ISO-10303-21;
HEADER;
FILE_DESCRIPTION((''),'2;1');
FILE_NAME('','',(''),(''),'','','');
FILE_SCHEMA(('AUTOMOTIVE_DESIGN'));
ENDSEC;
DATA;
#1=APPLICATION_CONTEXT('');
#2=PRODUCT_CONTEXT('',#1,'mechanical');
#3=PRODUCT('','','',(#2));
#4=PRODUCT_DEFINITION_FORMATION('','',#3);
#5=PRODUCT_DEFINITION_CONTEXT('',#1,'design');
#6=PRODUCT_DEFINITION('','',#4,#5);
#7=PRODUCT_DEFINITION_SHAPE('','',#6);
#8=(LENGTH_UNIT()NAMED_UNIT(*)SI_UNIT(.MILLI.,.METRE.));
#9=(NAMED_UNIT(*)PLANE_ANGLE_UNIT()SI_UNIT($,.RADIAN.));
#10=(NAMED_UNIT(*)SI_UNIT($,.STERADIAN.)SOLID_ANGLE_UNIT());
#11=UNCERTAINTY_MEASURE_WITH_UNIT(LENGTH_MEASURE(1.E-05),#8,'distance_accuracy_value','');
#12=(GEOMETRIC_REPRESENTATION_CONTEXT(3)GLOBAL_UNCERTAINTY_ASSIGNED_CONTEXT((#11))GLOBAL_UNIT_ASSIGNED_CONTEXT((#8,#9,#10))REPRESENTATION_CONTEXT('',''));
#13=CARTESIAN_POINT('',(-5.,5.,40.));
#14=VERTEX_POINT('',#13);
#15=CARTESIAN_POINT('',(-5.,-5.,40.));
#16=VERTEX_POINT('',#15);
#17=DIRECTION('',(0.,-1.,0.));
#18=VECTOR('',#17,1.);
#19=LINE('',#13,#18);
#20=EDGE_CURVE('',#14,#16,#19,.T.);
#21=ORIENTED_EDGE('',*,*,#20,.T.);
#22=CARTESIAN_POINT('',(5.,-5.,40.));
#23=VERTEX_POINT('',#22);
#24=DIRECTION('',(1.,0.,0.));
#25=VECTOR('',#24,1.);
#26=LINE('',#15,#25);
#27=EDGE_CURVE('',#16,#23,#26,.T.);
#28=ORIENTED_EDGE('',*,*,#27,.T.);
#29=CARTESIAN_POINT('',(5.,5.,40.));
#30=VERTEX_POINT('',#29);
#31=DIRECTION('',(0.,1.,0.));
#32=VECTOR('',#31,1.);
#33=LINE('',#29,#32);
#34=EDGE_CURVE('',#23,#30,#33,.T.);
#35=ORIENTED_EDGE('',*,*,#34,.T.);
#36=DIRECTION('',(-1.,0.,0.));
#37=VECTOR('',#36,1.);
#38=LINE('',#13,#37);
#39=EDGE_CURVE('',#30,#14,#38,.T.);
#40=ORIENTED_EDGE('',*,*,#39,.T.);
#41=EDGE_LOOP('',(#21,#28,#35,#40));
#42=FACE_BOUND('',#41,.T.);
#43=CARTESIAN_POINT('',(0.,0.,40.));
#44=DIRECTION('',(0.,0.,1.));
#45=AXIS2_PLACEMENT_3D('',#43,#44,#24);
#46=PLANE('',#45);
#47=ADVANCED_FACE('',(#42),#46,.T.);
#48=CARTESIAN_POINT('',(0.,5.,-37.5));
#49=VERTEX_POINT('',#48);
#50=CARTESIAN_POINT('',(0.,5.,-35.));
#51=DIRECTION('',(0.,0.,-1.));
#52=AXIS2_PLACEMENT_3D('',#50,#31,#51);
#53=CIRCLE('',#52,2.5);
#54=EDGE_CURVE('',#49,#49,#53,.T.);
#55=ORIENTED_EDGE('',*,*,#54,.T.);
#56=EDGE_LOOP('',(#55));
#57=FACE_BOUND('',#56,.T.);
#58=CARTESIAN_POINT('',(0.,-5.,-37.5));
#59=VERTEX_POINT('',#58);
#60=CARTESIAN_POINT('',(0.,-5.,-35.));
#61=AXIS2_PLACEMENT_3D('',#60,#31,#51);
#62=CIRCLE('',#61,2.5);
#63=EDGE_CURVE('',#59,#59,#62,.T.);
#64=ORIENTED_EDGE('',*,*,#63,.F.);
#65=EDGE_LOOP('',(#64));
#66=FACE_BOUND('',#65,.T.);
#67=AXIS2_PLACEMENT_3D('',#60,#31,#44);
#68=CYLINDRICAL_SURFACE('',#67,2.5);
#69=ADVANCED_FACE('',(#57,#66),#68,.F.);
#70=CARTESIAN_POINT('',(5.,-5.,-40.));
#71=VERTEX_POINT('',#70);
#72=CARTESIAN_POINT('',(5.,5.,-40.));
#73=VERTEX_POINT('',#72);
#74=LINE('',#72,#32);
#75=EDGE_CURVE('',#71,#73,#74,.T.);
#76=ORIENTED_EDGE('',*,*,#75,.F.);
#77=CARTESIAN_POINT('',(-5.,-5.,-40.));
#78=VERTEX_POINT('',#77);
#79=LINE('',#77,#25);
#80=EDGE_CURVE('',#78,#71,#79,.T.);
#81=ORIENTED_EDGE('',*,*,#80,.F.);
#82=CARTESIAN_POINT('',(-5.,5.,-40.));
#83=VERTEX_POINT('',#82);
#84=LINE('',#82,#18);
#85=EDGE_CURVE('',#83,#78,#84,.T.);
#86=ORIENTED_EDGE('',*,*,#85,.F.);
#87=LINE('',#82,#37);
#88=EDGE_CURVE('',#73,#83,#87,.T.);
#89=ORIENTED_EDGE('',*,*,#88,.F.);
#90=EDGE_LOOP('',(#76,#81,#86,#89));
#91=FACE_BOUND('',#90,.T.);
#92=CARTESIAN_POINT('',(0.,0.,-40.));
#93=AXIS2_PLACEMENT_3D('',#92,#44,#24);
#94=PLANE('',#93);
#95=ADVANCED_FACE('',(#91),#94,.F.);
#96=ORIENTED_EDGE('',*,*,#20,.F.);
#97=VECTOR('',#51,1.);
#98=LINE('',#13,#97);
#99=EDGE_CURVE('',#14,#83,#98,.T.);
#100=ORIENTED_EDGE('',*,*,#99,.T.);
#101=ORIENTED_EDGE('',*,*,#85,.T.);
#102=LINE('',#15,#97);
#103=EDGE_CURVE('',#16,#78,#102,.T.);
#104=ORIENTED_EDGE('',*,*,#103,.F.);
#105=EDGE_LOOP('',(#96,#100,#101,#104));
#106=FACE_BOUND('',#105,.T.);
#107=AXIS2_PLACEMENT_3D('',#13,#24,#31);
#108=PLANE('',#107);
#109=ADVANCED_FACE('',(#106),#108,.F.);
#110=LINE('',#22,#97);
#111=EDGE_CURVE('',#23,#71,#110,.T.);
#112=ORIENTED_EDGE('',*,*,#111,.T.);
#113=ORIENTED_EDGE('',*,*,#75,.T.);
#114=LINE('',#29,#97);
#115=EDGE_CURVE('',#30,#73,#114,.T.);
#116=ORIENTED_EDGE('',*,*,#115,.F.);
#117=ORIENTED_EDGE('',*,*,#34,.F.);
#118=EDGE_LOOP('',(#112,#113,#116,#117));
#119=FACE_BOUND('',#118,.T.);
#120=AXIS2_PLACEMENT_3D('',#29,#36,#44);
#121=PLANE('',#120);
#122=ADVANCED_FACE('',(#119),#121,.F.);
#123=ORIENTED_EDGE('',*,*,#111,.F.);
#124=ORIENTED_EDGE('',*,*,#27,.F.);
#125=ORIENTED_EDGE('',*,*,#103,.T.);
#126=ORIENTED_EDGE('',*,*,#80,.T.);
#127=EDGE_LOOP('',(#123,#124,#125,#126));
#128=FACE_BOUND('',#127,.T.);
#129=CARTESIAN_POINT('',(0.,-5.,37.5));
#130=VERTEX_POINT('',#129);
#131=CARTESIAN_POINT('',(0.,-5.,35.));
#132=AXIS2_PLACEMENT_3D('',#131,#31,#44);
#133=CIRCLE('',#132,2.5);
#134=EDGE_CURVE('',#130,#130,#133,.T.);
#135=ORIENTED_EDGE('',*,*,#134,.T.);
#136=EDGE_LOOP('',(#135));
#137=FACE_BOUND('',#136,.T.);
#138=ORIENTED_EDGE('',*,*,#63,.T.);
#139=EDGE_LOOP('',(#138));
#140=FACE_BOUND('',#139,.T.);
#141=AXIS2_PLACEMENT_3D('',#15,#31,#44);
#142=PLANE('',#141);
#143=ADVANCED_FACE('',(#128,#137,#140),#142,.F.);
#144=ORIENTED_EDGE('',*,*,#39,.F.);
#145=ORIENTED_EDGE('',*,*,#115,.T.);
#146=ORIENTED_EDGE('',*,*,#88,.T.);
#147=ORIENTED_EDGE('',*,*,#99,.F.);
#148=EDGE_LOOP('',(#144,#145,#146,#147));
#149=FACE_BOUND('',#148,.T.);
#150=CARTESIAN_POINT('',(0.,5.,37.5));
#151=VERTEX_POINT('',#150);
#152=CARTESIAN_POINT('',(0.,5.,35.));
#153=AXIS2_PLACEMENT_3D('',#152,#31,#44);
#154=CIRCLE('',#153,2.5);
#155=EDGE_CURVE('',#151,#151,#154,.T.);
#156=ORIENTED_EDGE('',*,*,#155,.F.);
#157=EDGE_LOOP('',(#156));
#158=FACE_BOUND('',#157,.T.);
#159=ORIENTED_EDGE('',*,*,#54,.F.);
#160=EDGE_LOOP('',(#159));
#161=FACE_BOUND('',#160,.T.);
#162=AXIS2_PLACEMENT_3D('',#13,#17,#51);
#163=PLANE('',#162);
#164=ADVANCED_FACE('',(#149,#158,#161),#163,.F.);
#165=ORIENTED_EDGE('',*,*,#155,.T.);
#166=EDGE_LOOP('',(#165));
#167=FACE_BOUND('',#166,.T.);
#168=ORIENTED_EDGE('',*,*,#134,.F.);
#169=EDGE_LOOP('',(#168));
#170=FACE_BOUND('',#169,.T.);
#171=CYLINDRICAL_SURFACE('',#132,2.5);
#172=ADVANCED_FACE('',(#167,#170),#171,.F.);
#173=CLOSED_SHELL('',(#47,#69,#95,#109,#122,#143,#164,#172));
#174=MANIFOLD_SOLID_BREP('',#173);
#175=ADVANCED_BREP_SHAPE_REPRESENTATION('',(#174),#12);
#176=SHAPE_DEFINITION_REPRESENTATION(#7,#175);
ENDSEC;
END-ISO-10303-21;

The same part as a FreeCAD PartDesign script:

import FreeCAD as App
import Part
import Sketcher
from FreeCAD import Vector

doc = App.newDocument("Part")
body = doc.addObject("PartDesign::Body", "Body")

sketch1 = doc.addObject("Sketcher::SketchObject", "Sketch")
body.addObject(sketch1)
sketch1.AttachmentSupport = (doc.XY_Plane, [""])
sketch1.MapMode = "FlatFace"
sketch1.addGeometry(Part.LineSegment(Vector(-5, 5, 0), Vector(-5, -5, 0)), False)
sketch1.addGeometry(Part.LineSegment(Vector(-5, -5, 0), Vector(5, -5, 0)), False)
sketch1.addGeometry(Part.LineSegment(Vector(5, -5, 0), Vector(5, 5, 0)), False)
sketch1.addGeometry(Part.LineSegment(Vector(5, 5, 0), Vector(-5, 5, 0)), False)
sketch1.addConstraint(Sketcher.Constraint("Coincident", 0, 2, 1, 1))
sketch1.addConstraint(Sketcher.Constraint("Coincident", 1, 2, 2, 1))
sketch1.addConstraint(Sketcher.Constraint("Coincident", 2, 2, 3, 1))
sketch1.addConstraint(Sketcher.Constraint("Coincident", 3, 2, 0, 1))
sketch1.addConstraint(Sketcher.Constraint("Vertical", 0))
sketch1.addConstraint(Sketcher.Constraint("Horizontal", 1))
sketch1.addConstraint(Sketcher.Constraint("Vertical", 2))
sketch1.addConstraint(Sketcher.Constraint("Horizontal", 3))
sketch1.addConstraint(Sketcher.Constraint("Symmetric", 0, 2, 2, 2, -1, 1))
sketch1.addConstraint(Sketcher.Constraint("Equal", 3, 0))
sketch1.addConstraint(Sketcher.Constraint("DistanceX", 1, 1, 1, 2, 10.0))
pad1 = doc.addObject("PartDesign::Pad", "Pad")
body.addObject(pad1)
pad1.Profile = sketch1
pad1.Length = 80
pad1.Midplane = True

sketch2 = doc.addObject("Sketcher::SketchObject", "Sketch001")
body.addObject(sketch2)
sketch2.AttachmentSupport = (doc.XZ_Plane, [""])
sketch2.MapMode = "FlatFace"
sketch2.addGeometry(Part.Circle(Vector(0, 35, 0), Vector(0, 0, 1), 2.5), False)
sketch2.addGeometry(Part.Circle(Vector(0, -35, 0), Vector(0, 0, 1), 2.5), False)
sketch2.addConstraint(Sketcher.Constraint("Equal", 0, 1))
sketch2.addConstraint(Sketcher.Constraint("Symmetric", 0, 3, 1, 3, -1, 1))
sketch2.addConstraint(Sketcher.Constraint("PointOnObject", 0, 3, -2))
sketch2.addConstraint(Sketcher.Constraint("Diameter", 0, 5.0))
sketch2.addConstraint(Sketcher.Constraint("DistanceY", -1, 1, 0, 3, 35.0))
pocket1 = doc.addObject("PartDesign::Pocket", "Pocket")
body.addObject(pocket1)
pocket1.Profile = sketch2
pocket1.Type = "ThroughAll"
pocket1.Midplane = True

doc.recompute()
